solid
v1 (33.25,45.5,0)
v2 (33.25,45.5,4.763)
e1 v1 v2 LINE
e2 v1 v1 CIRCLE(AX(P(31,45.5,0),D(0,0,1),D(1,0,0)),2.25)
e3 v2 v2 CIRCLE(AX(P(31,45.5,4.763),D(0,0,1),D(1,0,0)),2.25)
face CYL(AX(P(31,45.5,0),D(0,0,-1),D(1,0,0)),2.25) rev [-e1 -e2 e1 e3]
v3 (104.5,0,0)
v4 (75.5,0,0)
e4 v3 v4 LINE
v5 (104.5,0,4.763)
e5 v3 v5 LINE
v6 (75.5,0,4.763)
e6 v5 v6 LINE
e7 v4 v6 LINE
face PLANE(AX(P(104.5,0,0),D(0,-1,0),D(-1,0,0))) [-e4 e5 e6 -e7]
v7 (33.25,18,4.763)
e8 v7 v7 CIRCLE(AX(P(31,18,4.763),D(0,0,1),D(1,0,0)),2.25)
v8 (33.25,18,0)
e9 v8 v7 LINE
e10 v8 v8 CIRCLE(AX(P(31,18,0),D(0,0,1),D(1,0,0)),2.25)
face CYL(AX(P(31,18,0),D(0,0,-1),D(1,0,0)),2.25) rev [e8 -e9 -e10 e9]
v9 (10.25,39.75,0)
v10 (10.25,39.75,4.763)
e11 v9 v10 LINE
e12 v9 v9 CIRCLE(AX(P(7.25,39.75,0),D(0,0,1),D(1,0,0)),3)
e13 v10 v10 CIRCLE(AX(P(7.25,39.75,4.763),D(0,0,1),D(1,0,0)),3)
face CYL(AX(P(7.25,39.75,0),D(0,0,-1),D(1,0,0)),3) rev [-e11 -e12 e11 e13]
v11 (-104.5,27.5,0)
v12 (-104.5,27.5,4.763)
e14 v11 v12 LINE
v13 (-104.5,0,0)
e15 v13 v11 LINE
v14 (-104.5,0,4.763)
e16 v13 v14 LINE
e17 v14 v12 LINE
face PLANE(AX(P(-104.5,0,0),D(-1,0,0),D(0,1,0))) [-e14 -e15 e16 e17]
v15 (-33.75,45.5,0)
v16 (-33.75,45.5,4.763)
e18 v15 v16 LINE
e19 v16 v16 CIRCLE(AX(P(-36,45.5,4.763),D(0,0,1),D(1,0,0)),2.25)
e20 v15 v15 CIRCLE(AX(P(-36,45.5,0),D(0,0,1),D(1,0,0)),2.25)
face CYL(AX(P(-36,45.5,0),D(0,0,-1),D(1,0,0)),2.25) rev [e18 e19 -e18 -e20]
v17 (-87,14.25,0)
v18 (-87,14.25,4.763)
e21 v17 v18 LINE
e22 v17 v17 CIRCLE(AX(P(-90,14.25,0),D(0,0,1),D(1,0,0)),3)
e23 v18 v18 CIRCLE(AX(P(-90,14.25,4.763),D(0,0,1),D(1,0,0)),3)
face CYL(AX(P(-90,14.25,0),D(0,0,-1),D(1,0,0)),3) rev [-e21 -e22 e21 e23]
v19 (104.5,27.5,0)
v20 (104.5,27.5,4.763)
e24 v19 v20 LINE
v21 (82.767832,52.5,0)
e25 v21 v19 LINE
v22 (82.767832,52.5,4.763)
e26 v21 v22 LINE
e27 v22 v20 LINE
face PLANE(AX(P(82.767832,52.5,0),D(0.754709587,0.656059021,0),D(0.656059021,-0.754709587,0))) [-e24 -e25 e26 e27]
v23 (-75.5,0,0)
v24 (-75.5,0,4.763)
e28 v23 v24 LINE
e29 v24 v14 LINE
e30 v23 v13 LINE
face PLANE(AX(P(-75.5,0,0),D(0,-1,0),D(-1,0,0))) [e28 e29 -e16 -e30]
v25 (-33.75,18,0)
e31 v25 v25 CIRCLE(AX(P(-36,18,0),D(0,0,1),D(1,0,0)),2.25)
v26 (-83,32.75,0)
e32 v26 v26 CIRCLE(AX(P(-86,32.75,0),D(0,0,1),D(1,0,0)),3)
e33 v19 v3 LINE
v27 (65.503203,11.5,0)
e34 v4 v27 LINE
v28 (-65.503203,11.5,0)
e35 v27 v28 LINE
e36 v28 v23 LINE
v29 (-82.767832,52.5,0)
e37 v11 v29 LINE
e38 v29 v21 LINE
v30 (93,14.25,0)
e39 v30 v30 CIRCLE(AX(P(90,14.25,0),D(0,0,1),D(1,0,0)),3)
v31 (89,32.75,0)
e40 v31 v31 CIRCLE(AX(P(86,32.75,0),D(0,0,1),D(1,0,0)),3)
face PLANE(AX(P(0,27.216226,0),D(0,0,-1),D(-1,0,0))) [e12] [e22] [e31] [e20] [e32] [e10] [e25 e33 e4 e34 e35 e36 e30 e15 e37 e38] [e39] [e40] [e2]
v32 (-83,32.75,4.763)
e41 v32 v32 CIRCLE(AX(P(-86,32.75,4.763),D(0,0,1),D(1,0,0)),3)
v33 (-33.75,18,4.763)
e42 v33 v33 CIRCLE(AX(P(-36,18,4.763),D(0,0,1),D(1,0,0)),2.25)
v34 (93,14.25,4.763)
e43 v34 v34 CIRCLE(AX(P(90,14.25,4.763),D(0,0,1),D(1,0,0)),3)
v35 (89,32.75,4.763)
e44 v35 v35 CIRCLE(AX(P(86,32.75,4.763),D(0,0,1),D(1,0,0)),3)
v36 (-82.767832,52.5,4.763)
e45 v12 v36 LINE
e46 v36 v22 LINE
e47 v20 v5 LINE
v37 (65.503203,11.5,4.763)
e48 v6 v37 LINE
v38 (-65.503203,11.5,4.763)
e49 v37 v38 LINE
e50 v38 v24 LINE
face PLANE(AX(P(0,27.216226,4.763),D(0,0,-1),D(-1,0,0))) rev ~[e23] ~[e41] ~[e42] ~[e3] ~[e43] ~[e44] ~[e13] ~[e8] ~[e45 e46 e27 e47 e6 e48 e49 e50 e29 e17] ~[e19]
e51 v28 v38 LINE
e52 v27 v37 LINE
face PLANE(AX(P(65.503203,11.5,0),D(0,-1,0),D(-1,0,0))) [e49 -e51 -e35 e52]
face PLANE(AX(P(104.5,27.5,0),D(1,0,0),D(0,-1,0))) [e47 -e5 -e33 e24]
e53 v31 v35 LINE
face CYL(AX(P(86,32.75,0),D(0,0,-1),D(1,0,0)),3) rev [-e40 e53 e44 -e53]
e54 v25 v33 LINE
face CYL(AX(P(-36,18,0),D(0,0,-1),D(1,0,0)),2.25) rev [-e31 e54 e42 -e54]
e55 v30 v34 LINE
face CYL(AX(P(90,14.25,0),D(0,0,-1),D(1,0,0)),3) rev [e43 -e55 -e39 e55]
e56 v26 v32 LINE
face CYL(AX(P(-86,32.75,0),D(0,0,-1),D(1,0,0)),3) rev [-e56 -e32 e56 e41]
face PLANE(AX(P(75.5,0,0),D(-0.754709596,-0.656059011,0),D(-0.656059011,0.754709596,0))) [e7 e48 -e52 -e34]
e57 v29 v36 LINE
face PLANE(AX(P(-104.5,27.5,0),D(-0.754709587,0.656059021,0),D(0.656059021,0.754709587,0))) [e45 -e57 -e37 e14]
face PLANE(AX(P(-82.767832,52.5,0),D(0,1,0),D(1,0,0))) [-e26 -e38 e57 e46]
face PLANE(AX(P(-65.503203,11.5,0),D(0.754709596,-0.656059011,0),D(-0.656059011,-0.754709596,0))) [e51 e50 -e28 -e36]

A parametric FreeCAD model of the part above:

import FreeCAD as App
import Part
import Sketcher

V = App.Vector
Q = App.Units.Quantity

doc = App.newDocument("Part")
body = doc.addObject("PartDesign::Body", "Body")

# Sketch on XY plane
sketch1 = body.newObject("Sketcher::SketchObject", "Sketch")
sketch1.AttachmentSupport = (doc.getObject("XY_Plane"), [""])
sketch1.MapMode = "FlatFace"
sketch1.addGeometry([
    Part.LineSegment(V(-104.5, 27.5, 0), V(-104.5, 0, 0)),  # 0
    Part.LineSegment(V(-104.5, 0, 0), V(-75.5, 0, 0)),  # 1
    Part.LineSegment(V(-75.5, 0, 0), V(-65.503203, 11.5, 0)),  # 2
    Part.LineSegment(V(-65.503203, 11.5, 0), V(65.503203, 11.5, 0)),  # 3
    Part.LineSegment(V(65.503203, 11.5, 0), V(75.5, 0, 0)),  # 4
    Part.LineSegment(V(75.5, 0, 0), V(104.5, 0, 0)),  # 5
    Part.LineSegment(V(104.5, 0, 0), V(104.5, 27.5, 0)),  # 6
    Part.LineSegment(V(104.5, 27.5, 0), V(82.767832, 52.5, 0)),  # 7
    Part.LineSegment(V(82.767832, 52.5, 0), V(-82.767832, 52.5, 0)),  # 8
    Part.LineSegment(V(-82.767832, 52.5, 0), V(-104.5, 27.5, 0)),  # 9
    Part.Circle(V(90, 14.25, 0), V(0, 0, 1), 3),  # 10
    Part.Circle(V(31, 18, 0), V(0, 0, 1), 2.25),  # 11
    Part.Circle(V(-36, 18, 0), V(0, 0, 1), 2.25),  # 12
    Part.Circle(V(-90, 14.25, 0), V(0, 0, 1), 3),  # 13
    Part.Circle(V(86, 32.75, 0), V(0, 0, 1), 3),  # 14
    Part.Circle(V(7.25, 39.75, 0), V(0, 0, 1), 3),  # 15
    Part.Circle(V(31, 45.5, 0), V(0, 0, 1), 2.25),  # 16
    Part.Circle(V(-86, 32.75, 0), V(0, 0, 1), 3),  # 17
    Part.Circle(V(-36, 45.5, 0), V(0, 0, 1), 2.25),  # 18
], False)
sketch1.addConstraint([
    Sketcher.Constraint("Coincident", 0, 2, 1, 1),
    Sketcher.Constraint("Coincident", 1, 2, 2, 1),
    Sketcher.Constraint("Coincident", 2, 2, 3, 1),
    Sketcher.Constraint("Coincident", 3, 2, 4, 1),
    Sketcher.Constraint("Coincident", 4, 2, 5, 1),
    Sketcher.Constraint("Coincident", 5, 2, 6, 1),
    Sketcher.Constraint("Coincident", 6, 2, 7, 1),
    Sketcher.Constraint("Coincident", 7, 2, 8, 1),
    Sketcher.Constraint("Coincident", 8, 2, 9, 1),
    Sketcher.Constraint("Coincident", 9, 2, 0, 1),
    Sketcher.Constraint("Vertical", 0),
    Sketcher.Constraint("Horizontal", 1),
    Sketcher.Constraint("Horizontal", 3),
    Sketcher.Constraint("Horizontal", 5),
    Sketcher.Constraint("Vertical", 6),
    Sketcher.Constraint("Horizontal", 8),
    Sketcher.Constraint("Equal", 11, 12),
    Sketcher.Constraint("Equal", 10, 13),
    Sketcher.Constraint("Equal", 13, 14),
    Sketcher.Constraint("Equal", 14, 15),
    Sketcher.Constraint("Equal", 12, 16),
    Sketcher.Constraint("Equal", 15, 17),
    Sketcher.Constraint("Equal", 16, 18),
    Sketcher.Constraint("Symmetric", 1, 2, 4, 2, -1, 1),
    Sketcher.Constraint("Symmetric", 10, 3, 13, 3, -2),
    Sketcher.Constraint("Symmetric", 14, 3, 17, 3, -2),
    Sketcher.Constraint("Symmetric", 0, 2, 5, 2, -2),
    Sketcher.Constraint("Parallel", 4, 7),
    Sketcher.Constraint("Parallel", 2, 9),
    Sketcher.Constraint("Horizontal", 11, 3, 12, 3),
    Sketcher.Constraint("Horizontal", 16, 3, 18, 3),
    Sketcher.Constraint("Horizontal", 6, 2, 9, 2),
    Sketcher.Constraint("Vertical", 11, 3, 16, 3),
    Sketcher.Constraint("Vertical", 12, 3, 18, 3),
    Sketcher.Constraint("Equal", 2, 4),
    Sketcher.Constraint("Diameter", 10, Q("6 mm")),
    Sketcher.Constraint("Diameter", 11, Q("4.5 mm")),
    Sketcher.Constraint("DistanceX", 1, 1, 1, 2, Q("29 mm")),
    Sketcher.Constraint("Angle", 2, Q("49.000001 deg")),
    Sketcher.Constraint("DistanceY", 0, 2, 0, 1, Q("27.5 mm")),
    Sketcher.Constraint("DistanceX", -1, 1, 10, 3, Q("90 mm")),
    Sketcher.Constraint("DistanceX", -1, 1, 11, 3, Q("31 mm")),
    Sketcher.Constraint("DistanceY", -1, 1, 11, 3, Q("18 mm")),
    Sketcher.Constraint("DistanceX", 12, 3, -1, 1, Q("36 mm")),
    Sketcher.Constraint("DistanceX", -1, 1, 14, 3, Q("86 mm")),
    Sketcher.Constraint("DistanceY", 14, 3, 15, 3, Q("7 mm")),
    Sketcher.Constraint("DistanceY", 3, 2, 16, 3, Q("34 mm")),
    Sketcher.Constraint("DistanceY", 3, 2, 6, 2, Q("16 mm")),
    Sketcher.Constraint("DistanceY", 6, 2, 7, 2, Q("25 mm")),
    Sketcher.Constraint("DistanceX", 0, 2, -1, 1, Q("104.5 mm")),
    Sketcher.Constraint("DistanceY", 10, 3, 14, 3, Q("18.5 mm")),
    Sketcher.Constraint("DistanceY", -1, 1, 10, 3, Q("14.25 mm")),
    Sketcher.Constraint("DistanceX", -1, 1, 15, 3, Q("7.25 mm")),
])
pad1 = body.newObject("PartDesign::Pad", "Pad")
pad1.Profile = sketch1
pad1.Length = 4.763

doc.recompute()
